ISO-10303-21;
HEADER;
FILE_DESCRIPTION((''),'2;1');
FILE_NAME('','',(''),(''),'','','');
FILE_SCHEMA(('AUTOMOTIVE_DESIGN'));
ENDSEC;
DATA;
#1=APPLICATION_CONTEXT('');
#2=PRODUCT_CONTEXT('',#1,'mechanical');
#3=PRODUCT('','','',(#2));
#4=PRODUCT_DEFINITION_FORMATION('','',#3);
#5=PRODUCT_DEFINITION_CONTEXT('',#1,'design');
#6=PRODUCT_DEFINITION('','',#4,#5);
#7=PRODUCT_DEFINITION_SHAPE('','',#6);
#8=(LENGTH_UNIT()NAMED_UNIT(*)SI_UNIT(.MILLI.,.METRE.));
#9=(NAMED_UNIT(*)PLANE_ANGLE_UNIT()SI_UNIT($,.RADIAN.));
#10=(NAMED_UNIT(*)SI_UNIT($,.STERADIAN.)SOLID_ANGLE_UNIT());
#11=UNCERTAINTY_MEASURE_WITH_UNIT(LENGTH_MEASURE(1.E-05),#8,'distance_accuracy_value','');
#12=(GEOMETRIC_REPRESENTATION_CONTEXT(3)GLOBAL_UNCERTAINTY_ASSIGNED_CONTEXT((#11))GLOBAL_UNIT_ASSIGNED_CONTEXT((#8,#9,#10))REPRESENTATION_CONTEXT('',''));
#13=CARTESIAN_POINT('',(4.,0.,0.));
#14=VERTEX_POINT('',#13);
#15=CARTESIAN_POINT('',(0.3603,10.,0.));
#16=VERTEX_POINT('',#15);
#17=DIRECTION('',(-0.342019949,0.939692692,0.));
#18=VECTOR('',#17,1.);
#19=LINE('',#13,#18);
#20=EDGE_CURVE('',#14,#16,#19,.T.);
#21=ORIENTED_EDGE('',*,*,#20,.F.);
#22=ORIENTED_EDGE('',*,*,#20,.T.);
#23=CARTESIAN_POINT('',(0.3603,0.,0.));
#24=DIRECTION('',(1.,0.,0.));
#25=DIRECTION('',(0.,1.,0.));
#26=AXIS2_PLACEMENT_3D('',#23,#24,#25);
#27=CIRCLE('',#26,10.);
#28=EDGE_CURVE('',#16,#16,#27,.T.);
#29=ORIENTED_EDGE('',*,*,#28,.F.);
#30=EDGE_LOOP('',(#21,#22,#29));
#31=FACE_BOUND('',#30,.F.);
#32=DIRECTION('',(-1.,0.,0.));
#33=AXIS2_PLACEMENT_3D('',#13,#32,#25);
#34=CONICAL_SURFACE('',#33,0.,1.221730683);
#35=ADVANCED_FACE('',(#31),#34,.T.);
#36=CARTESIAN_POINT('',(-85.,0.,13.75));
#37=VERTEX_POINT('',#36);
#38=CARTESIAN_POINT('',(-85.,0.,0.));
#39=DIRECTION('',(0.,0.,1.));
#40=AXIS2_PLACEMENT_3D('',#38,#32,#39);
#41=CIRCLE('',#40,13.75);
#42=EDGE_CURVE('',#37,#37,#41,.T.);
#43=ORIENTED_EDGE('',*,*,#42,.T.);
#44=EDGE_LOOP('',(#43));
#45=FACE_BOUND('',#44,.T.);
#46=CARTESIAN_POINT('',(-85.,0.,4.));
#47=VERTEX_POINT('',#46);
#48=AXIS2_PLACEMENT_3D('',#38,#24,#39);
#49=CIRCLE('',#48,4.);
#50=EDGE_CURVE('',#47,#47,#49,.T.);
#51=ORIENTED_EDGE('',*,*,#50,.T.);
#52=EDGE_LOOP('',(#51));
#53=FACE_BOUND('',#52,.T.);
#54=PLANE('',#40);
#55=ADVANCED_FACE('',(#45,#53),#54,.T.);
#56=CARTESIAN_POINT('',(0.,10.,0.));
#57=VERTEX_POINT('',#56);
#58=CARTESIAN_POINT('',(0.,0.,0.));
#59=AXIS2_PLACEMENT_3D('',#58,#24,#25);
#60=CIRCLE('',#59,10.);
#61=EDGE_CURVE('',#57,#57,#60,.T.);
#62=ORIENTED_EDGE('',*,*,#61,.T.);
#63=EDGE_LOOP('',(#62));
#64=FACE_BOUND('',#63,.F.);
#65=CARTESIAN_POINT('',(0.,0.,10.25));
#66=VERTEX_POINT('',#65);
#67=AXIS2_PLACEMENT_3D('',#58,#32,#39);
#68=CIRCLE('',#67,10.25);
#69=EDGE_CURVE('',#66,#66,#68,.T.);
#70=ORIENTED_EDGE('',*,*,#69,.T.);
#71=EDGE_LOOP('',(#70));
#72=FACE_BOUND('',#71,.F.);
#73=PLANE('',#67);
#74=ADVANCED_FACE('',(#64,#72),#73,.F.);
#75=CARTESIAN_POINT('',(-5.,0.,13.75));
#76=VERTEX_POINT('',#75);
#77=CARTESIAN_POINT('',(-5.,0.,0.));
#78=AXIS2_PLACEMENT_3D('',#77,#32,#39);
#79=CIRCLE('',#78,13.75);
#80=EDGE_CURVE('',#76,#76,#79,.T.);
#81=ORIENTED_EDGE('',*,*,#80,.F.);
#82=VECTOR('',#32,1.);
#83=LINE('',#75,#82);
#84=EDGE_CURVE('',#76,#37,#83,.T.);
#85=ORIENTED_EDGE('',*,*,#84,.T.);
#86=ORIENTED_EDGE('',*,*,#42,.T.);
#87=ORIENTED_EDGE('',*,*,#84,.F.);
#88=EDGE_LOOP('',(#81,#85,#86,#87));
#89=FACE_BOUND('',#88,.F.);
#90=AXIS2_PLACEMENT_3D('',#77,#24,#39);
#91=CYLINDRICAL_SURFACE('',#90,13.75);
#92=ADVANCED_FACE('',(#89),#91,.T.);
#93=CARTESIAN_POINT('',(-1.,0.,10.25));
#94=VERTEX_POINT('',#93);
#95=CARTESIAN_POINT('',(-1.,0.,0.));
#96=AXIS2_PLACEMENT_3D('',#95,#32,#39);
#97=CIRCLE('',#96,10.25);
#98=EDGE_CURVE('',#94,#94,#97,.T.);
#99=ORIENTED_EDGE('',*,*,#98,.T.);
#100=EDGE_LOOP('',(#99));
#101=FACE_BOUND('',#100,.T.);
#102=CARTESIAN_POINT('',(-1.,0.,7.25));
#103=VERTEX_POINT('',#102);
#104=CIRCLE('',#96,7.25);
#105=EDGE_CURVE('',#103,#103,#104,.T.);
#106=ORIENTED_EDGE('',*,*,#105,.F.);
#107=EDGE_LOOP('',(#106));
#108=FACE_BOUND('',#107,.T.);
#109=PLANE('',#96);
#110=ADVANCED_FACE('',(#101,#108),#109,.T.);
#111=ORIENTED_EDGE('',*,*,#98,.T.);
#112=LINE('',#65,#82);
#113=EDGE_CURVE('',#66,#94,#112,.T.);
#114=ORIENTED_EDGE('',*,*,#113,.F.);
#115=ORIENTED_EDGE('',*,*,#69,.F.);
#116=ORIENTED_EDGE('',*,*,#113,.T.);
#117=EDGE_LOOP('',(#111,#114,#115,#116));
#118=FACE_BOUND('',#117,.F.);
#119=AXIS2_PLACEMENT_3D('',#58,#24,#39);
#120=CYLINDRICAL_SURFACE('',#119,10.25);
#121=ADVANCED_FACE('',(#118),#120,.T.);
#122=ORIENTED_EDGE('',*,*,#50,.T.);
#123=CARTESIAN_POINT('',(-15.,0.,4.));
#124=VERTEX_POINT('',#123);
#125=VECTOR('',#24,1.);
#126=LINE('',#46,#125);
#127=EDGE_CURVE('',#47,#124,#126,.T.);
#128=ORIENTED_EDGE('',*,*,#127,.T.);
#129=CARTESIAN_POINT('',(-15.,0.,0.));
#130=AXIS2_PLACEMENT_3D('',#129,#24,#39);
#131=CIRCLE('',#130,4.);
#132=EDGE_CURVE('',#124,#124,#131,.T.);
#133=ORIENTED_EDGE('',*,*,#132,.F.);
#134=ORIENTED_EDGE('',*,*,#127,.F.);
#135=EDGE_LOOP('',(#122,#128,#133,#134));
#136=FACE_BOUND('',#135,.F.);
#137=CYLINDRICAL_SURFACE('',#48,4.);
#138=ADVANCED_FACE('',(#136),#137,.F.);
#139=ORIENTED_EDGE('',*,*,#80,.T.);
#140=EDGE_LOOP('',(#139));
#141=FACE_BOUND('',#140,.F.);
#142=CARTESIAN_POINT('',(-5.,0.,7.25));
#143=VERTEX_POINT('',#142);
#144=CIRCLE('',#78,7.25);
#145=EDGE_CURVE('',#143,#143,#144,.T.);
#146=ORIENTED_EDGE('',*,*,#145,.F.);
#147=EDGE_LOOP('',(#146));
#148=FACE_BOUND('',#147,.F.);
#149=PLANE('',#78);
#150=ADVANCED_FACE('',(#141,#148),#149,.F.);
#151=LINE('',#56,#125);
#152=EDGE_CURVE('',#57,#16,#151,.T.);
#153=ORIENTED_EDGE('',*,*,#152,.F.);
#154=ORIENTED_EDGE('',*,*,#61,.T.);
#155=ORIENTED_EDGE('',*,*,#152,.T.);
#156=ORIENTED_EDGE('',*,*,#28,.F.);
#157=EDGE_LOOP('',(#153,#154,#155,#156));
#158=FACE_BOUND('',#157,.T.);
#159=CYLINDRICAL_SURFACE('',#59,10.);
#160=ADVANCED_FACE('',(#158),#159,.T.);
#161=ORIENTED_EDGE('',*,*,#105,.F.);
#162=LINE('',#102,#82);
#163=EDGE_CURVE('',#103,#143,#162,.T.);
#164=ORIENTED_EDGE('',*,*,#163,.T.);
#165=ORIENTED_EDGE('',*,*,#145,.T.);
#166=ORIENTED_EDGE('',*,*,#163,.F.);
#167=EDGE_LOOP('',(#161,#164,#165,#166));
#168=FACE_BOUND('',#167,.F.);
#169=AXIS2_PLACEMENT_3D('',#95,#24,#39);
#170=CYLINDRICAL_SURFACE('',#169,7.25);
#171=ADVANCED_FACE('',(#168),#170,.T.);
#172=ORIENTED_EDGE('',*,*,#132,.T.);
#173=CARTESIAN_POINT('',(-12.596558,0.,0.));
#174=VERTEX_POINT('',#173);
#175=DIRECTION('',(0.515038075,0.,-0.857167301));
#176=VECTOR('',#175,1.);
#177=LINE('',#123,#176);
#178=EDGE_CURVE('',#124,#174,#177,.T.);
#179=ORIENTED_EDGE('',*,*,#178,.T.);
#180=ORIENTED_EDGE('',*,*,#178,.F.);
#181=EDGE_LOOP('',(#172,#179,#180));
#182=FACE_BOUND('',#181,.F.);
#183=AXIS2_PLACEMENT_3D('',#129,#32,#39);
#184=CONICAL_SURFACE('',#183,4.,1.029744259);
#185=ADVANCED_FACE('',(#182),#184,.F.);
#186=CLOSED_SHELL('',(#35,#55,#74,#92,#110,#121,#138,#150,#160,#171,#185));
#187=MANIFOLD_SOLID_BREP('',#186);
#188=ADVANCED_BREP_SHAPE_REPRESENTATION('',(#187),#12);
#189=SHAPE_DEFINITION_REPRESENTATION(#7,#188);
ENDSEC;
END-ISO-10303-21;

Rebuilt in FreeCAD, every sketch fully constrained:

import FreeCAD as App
import Part
import Sketcher
from FreeCAD import Vector
Q = App.Units.Quantity

doc = App.newDocument("Part")
body = doc.addObject("PartDesign::Body", "Body")

# Sketch on XY plane
sketch1 = doc.addObject("Sketcher::SketchObject", "Sketch")
body.addObject(sketch1)
sketch1.AttachmentSupport = (doc.XY_Plane, [""])
sketch1.MapMode = "FlatFace"
sketch1.addGeometry([
    Part.LineSegment(Vector(0, 10, 0), Vector(0, 0, 0)),
    Part.LineSegment(Vector(0, 0, 0), Vector(4, 0, 0)),
    Part.LineSegment(Vector(4, 0, 0), Vector(0.3603, 10, 0)),
    Part.LineSegment(Vector(0.3603, 10, 0), Vector(0, 10, 0)),
], False)
sketch1.addConstraint([
    Sketcher.Constraint("Coincident", 0, 2, 1, 1),
    Sketcher.Constraint("Coincident", 1, 2, 2, 1),
    Sketcher.Constraint("Coincident", 2, 2, 3, 1),
    Sketcher.Constraint("Coincident", 3, 2, 0, 1),
    Sketcher.Constraint("Vertical", 0),
    Sketcher.Constraint("Horizontal", 1),
    Sketcher.Constraint("Horizontal", 3),
    Sketcher.Constraint("Coincident", 0, 2, -1, 1),
    Sketcher.Constraint("DistanceX", 1, 1, 1, 2, Q("4 mm")),
    Sketcher.Constraint("DistanceY", 0, 2, 0, 1, Q("10 mm")),
    Sketcher.Constraint("Angle", 2, Q("110 deg")),
])
revolution = doc.addObject("PartDesign::Revolution", "Revolution")
body.addObject(revolution)
revolution.Profile = sketch1
revolution.ReferenceAxis = (sketch1, ["H_Axis"])
revolution.Angle = 360

# Sketch on YZ plane
sketch2 = doc.addObject("Sketcher::SketchObject", "Sketch001")
body.addObject(sketch2)
sketch2.AttachmentSupport = (doc.YZ_Plane, [""])
sketch2.MapMode = "FlatFace"
sketch2.addGeometry(Part.Circle(Vector(0, 0, 0), Vector(0, 0, 1), 10.25), False)
sketch2.addConstraint([
    Sketcher.Constraint("Coincident", 0, 3, -1, 1),
    Sketcher.Constraint("Diameter", 0, Q("20.5 mm")),
])
pad1 = doc.addObject("PartDesign::Pad", "Pad")
body.addObject(pad1)
pad1.Profile = sketch2
pad1.Length = 1
pad1.Reversed = True

# Sketch on YZ plane
sketch3 = doc.addObject("Sketcher::SketchObject", "Sketch002")
body.addObject(sketch3)
sketch3.AttachmentSupport = (doc.YZ_Plane, [""])
sketch3.MapMode = "FlatFace"
sketch3.AttachmentOffset = App.Placement(Vector(0, 0, -1), App.Rotation())
sketch3.addGeometry(Part.Circle(Vector(0, 0, 0), Vector(0, 0, 1), 7.25), False)
sketch3.addConstraint([
    Sketcher.Constraint("Coincident", 0, 3, -1, 1),
    Sketcher.Constraint("Diameter", 0, Q("14.5 mm")),
])
pad2 = doc.addObject("PartDesign::Pad", "Pad001")
body.addObject(pad2)
pad2.Profile = sketch3
pad2.Length = 4
pad2.Reversed = True

# Sketch on YZ plane
sketch4 = doc.addObject("Sketcher::SketchObject", "Sketch003")
body.addObject(sketch4)
sketch4.AttachmentSupport = (doc.YZ_Plane, [""])
sketch4.MapMode = "FlatFace"
sketch4.AttachmentOffset = App.Placement(Vector(0, 0, -5), App.Rotation())
sketch4.addGeometry(Part.Circle(Vector(0, 0, 0), Vector(0, 0, 1), 13.75), False)
sketch4.addConstraint([
    Sketcher.Constraint("Coincident", 0, 3, -1, 1),
    Sketcher.Constraint("Diameter", 0, Q("27.5 mm")),
])
pad3 = doc.addObject("PartDesign::Pad", "Pad002")
body.addObject(pad3)
pad3.Profile = sketch4
pad3.Length = 80
pad3.Reversed = True

# Sketch on YZ plane
sketch5 = doc.addObject("Sketcher::SketchObject", "Sketch004")
body.addObject(sketch5)
sketch5.AttachmentSupport = (doc.YZ_Plane, [""])
sketch5.MapMode = "FlatFace"
sketch5.AttachmentOffset = App.Placement(Vector(0, 0, -85), App.Rotation())
sketch5.addGeometry(Part.Circle(Vector(0, 0, 0), Vector(0, 0, 1), 4), False)
sketch5.addConstraint([
    Sketcher.Constraint("Coincident", 0, 3, -1, 1),
    Sketcher.Constraint("Diameter", 0, Q("8 mm")),
])
doc.recompute()
hole = doc.addObject("PartDesign::Hole", "Hole")
body.addObject(hole)
hole.Profile = sketch5
hole.ThreadType = "None"
hole.Diameter = 8
hole.DepthType = "Dimension"
hole.Depth = 70
hole.DrillPoint = "Angled"
hole.DrillPointAngle = 118
hole.Reversed = True

doc.recompute()
